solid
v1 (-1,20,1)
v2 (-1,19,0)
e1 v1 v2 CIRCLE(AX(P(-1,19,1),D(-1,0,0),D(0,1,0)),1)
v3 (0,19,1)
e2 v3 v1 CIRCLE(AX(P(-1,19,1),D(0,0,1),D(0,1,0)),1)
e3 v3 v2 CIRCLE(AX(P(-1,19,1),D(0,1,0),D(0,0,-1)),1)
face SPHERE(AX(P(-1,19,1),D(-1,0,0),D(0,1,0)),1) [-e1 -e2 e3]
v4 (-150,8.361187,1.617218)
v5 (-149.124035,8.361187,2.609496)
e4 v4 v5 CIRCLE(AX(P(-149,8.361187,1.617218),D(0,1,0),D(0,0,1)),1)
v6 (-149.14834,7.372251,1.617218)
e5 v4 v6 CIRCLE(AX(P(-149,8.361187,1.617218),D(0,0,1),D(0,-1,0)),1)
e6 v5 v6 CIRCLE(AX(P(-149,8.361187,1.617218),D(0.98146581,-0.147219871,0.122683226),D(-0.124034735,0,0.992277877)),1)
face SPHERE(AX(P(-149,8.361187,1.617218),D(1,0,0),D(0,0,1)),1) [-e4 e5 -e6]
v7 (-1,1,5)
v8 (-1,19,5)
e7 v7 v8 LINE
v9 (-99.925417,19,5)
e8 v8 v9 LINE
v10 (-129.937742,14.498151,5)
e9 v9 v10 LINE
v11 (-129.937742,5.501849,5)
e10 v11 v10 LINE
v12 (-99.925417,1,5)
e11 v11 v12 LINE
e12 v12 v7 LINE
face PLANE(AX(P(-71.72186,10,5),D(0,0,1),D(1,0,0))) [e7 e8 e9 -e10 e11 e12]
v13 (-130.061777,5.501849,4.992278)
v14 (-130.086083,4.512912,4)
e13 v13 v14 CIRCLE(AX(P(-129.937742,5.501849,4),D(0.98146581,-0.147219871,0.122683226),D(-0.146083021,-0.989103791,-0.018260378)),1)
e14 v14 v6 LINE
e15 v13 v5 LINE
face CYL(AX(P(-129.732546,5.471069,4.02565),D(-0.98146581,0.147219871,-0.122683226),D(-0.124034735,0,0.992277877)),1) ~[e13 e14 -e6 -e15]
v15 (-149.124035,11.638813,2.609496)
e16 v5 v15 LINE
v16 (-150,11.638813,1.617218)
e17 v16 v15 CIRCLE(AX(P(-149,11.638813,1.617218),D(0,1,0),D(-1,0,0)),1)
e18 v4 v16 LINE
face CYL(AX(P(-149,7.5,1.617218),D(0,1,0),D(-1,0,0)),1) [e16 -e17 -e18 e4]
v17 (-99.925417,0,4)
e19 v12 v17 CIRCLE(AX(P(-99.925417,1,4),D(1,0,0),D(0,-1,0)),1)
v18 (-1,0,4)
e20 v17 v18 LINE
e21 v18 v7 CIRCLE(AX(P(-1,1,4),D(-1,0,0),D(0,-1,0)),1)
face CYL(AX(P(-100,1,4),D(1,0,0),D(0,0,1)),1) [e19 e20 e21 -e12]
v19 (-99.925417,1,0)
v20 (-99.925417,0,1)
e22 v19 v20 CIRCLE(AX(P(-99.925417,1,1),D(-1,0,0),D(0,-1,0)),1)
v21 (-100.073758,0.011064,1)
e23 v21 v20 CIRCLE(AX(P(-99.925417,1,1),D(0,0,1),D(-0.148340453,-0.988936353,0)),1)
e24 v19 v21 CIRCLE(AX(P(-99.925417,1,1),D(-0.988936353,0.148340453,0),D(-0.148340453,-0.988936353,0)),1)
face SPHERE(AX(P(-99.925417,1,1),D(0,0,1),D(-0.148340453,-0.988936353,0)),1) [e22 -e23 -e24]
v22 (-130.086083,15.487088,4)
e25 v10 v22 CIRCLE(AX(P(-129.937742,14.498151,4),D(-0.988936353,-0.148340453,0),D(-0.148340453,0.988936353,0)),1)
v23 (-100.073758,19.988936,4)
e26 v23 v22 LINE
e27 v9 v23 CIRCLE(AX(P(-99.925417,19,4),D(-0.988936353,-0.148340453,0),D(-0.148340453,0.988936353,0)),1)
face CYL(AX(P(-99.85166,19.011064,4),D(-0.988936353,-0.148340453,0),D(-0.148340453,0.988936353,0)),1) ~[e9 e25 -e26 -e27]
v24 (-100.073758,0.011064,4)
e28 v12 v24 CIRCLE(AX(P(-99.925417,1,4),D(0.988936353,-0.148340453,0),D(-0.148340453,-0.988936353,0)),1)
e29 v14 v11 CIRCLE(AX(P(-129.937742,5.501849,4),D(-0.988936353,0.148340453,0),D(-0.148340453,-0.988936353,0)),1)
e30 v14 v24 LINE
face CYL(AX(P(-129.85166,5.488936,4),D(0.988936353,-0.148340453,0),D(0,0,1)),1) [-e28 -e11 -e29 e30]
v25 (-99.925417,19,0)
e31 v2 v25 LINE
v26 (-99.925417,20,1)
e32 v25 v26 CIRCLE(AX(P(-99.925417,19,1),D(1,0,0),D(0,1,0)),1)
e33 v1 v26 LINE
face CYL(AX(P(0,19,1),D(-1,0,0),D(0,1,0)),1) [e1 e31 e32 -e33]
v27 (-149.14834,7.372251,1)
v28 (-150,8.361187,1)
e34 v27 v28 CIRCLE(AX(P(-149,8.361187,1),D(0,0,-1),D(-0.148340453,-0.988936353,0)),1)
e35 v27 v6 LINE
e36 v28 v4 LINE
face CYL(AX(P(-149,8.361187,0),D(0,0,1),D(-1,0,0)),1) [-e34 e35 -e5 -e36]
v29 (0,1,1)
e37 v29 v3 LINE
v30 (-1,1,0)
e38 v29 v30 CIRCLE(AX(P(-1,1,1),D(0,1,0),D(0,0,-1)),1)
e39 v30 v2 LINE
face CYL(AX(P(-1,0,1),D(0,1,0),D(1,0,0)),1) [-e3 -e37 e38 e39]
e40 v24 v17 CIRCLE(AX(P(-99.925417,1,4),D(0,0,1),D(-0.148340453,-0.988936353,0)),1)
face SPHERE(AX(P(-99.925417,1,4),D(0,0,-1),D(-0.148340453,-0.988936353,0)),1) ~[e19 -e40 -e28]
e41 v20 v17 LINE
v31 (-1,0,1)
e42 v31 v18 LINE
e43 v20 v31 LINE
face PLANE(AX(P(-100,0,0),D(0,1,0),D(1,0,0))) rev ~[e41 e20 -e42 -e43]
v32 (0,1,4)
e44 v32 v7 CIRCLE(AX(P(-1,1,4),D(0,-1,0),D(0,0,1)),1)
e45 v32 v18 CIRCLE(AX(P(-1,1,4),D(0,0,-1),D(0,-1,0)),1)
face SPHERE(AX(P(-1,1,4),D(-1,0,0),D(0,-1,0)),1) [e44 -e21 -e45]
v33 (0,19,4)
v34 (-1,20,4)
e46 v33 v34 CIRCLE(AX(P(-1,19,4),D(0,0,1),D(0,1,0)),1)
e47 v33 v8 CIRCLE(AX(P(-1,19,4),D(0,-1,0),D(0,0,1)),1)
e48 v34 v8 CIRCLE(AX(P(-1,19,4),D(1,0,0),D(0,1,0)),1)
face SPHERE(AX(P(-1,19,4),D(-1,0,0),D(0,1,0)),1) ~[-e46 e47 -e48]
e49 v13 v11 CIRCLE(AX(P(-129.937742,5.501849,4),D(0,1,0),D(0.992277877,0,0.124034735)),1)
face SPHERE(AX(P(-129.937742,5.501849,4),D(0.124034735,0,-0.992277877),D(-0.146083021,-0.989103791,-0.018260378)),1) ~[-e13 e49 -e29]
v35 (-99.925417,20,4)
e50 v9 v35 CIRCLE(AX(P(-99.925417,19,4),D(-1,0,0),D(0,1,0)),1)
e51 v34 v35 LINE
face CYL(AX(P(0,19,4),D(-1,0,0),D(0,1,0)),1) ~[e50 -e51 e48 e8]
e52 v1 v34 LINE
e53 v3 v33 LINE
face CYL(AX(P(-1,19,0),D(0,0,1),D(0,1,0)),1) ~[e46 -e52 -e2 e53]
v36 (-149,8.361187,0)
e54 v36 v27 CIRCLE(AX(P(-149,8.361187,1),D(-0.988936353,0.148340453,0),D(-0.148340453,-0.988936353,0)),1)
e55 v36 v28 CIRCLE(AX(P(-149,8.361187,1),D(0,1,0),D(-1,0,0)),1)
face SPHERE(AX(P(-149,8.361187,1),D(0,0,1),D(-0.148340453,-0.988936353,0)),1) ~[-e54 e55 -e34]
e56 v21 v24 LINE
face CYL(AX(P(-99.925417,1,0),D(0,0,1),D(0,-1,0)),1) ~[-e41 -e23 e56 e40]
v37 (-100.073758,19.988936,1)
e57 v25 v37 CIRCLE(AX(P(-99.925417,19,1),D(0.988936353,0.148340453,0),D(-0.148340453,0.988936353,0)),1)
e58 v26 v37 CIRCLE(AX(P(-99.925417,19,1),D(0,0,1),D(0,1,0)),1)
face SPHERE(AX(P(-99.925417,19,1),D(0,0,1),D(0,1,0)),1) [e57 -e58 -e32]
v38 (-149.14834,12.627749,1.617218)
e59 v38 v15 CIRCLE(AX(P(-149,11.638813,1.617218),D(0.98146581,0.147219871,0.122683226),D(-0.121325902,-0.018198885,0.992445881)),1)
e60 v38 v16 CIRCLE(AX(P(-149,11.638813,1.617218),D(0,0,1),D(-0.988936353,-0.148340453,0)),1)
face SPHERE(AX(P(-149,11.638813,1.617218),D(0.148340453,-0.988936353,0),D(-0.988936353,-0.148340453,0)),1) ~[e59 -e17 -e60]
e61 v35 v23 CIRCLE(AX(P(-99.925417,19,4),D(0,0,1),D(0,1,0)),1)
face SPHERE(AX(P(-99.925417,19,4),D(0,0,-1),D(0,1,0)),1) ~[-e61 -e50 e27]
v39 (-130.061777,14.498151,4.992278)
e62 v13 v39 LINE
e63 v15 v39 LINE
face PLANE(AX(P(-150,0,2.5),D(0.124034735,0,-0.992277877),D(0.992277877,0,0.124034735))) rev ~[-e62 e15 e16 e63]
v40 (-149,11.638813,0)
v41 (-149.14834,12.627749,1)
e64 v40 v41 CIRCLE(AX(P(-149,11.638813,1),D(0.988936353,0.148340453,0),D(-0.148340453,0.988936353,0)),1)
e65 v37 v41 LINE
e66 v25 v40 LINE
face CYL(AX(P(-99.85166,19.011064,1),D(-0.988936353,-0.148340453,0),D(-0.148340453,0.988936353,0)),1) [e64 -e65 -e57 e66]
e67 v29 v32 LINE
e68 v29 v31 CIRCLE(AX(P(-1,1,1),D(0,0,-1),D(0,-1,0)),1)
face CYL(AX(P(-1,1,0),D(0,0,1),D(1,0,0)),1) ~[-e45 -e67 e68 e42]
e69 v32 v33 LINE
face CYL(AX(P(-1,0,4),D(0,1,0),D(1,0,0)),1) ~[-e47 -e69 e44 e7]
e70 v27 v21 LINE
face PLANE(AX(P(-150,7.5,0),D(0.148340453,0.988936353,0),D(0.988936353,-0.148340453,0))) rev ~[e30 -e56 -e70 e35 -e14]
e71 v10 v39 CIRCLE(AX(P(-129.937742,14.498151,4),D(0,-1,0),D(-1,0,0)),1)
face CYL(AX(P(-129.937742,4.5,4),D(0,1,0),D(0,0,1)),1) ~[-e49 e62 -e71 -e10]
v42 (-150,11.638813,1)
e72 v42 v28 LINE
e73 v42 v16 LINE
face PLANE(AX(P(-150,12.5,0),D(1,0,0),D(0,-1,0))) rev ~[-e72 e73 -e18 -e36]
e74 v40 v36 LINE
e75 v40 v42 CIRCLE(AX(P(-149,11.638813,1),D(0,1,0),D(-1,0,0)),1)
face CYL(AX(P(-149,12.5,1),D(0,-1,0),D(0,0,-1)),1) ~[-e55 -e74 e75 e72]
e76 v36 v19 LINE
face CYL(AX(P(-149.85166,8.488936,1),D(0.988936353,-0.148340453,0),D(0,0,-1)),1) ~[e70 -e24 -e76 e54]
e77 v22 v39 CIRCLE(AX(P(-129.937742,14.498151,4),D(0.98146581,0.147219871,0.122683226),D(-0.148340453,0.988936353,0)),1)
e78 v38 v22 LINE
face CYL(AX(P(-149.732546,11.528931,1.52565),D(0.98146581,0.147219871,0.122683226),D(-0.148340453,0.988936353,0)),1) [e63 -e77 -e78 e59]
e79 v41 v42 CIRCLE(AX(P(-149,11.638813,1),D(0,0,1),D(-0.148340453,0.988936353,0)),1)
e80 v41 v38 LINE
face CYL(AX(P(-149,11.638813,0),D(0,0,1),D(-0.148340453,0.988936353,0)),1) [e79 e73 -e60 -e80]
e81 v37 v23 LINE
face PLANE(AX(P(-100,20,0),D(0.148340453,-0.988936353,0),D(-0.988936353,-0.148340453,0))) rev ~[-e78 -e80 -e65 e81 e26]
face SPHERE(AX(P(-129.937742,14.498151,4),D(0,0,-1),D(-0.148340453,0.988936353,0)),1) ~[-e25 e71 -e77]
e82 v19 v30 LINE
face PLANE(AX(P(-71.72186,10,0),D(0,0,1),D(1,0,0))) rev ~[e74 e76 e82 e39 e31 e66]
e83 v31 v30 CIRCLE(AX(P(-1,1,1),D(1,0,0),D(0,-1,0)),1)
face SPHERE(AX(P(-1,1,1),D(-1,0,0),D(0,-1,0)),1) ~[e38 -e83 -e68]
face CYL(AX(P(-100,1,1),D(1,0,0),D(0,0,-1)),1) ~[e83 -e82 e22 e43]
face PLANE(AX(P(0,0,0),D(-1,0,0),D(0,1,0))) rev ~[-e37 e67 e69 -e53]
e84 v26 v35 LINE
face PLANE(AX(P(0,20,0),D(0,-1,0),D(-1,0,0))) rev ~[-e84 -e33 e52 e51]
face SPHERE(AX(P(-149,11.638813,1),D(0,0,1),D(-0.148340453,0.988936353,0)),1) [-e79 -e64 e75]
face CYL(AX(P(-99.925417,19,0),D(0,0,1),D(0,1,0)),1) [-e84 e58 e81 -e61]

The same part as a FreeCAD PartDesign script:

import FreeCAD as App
import Part
import Sketcher
Q = App.Units.Quantity


def add_polygon(sketch, points):
    """Adds a closed chain of lines whose ends are joined by coincident constraints."""
    first, n = sketch.GeometryCount, len(points)
    for a, b in zip(points, points[1:] + points[:1]):
        sketch.addGeometry(Part.LineSegment(App.Vector(*a, 0), App.Vector(*b, 0)), False)
    for i in range(n):
        sketch.addConstraint(Sketcher.Constraint("Coincident", first + i, 2, first + (i + 1) % n, 1))

doc = App.newDocument("Part")
body = doc.addObject("PartDesign::Body", "Body")

sketch1 = body.newObject("Sketcher::SketchObject", "Sketch")
sketch1.AttachmentSupport = (doc.getObject("XY_Plane"), [""])
sketch1.MapMode = "FlatFace"
add_polygon(sketch1, [(0, 20), (-100, 20), (-150, 12), (-150, 8), (-100, 0), (0, 0)])
sketch1.addConstraint([
    Sketcher.Constraint("Horizontal", 0),
    Sketcher.Constraint("Vertical", 2),
    Sketcher.Constraint("Horizontal", 4),
    Sketcher.Constraint("Vertical", 5),
    Sketcher.Constraint("Coincident", 4, 2, -1, 1),
    Sketcher.Constraint("Vertical", 0, 2, 3, 2),
    Sketcher.Constraint("Equal", 1, 3),
    Sketcher.Constraint("DistanceX", 0, 2, 0, 1, Q("100 mm")),
    Sketcher.Constraint("DistanceY", 2, 2, 2, 1, Q("5 mm")),
    Sketcher.Constraint("DistanceY", 5, 1, 5, 2, Q("20 mm")),
    Sketcher.Constraint("DistanceX", 1, 2, -1, 1, Q("150 mm")),
])
pad1 = body.newObject("PartDesign::Pad", "Pad")
pad1.Profile = sketch1
pad1.Length = 5

sketch2 = body.newObject("Sketcher::SketchObject", "Sketch001")
sketch2.AttachmentSupport = (doc.getObject("XZ_Plane"), [""])
sketch2.MapMode = "FlatFace"
add_polygon(sketch2, [(-150, 5), (-150, 2.5), (-130, 5)])
sketch2.addConstraint([
    Sketcher.Constraint("Vertical", 0),
    Sketcher.Constraint("Horizontal", 2),
    Sketcher.Constraint("DistanceX", 2, 2, 2, 1, Q("20 mm")),
    Sketcher.Constraint("DistanceY", 0, 2, 0, 1, Q("2.5 mm")),
    Sketcher.Constraint("DistanceX", 0, 2, -1, 1, Q("150 mm")),
    Sketcher.Constraint("DistanceY", -1, 1, 1, 2, Q("5 mm")),
])
pocket1 = body.newObject("PartDesign::Pocket", "Pocket")
pocket1.Profile = sketch2
pocket1.Type = "ThroughAll"
doc.recompute()

fillet = body.newObject("PartDesign::Fillet", "Fillet")
fillet.Base = (pocket1, ["Edge1"])
fillet.UseAllEdges = True
fillet.Radius = 1

doc.recompute()
